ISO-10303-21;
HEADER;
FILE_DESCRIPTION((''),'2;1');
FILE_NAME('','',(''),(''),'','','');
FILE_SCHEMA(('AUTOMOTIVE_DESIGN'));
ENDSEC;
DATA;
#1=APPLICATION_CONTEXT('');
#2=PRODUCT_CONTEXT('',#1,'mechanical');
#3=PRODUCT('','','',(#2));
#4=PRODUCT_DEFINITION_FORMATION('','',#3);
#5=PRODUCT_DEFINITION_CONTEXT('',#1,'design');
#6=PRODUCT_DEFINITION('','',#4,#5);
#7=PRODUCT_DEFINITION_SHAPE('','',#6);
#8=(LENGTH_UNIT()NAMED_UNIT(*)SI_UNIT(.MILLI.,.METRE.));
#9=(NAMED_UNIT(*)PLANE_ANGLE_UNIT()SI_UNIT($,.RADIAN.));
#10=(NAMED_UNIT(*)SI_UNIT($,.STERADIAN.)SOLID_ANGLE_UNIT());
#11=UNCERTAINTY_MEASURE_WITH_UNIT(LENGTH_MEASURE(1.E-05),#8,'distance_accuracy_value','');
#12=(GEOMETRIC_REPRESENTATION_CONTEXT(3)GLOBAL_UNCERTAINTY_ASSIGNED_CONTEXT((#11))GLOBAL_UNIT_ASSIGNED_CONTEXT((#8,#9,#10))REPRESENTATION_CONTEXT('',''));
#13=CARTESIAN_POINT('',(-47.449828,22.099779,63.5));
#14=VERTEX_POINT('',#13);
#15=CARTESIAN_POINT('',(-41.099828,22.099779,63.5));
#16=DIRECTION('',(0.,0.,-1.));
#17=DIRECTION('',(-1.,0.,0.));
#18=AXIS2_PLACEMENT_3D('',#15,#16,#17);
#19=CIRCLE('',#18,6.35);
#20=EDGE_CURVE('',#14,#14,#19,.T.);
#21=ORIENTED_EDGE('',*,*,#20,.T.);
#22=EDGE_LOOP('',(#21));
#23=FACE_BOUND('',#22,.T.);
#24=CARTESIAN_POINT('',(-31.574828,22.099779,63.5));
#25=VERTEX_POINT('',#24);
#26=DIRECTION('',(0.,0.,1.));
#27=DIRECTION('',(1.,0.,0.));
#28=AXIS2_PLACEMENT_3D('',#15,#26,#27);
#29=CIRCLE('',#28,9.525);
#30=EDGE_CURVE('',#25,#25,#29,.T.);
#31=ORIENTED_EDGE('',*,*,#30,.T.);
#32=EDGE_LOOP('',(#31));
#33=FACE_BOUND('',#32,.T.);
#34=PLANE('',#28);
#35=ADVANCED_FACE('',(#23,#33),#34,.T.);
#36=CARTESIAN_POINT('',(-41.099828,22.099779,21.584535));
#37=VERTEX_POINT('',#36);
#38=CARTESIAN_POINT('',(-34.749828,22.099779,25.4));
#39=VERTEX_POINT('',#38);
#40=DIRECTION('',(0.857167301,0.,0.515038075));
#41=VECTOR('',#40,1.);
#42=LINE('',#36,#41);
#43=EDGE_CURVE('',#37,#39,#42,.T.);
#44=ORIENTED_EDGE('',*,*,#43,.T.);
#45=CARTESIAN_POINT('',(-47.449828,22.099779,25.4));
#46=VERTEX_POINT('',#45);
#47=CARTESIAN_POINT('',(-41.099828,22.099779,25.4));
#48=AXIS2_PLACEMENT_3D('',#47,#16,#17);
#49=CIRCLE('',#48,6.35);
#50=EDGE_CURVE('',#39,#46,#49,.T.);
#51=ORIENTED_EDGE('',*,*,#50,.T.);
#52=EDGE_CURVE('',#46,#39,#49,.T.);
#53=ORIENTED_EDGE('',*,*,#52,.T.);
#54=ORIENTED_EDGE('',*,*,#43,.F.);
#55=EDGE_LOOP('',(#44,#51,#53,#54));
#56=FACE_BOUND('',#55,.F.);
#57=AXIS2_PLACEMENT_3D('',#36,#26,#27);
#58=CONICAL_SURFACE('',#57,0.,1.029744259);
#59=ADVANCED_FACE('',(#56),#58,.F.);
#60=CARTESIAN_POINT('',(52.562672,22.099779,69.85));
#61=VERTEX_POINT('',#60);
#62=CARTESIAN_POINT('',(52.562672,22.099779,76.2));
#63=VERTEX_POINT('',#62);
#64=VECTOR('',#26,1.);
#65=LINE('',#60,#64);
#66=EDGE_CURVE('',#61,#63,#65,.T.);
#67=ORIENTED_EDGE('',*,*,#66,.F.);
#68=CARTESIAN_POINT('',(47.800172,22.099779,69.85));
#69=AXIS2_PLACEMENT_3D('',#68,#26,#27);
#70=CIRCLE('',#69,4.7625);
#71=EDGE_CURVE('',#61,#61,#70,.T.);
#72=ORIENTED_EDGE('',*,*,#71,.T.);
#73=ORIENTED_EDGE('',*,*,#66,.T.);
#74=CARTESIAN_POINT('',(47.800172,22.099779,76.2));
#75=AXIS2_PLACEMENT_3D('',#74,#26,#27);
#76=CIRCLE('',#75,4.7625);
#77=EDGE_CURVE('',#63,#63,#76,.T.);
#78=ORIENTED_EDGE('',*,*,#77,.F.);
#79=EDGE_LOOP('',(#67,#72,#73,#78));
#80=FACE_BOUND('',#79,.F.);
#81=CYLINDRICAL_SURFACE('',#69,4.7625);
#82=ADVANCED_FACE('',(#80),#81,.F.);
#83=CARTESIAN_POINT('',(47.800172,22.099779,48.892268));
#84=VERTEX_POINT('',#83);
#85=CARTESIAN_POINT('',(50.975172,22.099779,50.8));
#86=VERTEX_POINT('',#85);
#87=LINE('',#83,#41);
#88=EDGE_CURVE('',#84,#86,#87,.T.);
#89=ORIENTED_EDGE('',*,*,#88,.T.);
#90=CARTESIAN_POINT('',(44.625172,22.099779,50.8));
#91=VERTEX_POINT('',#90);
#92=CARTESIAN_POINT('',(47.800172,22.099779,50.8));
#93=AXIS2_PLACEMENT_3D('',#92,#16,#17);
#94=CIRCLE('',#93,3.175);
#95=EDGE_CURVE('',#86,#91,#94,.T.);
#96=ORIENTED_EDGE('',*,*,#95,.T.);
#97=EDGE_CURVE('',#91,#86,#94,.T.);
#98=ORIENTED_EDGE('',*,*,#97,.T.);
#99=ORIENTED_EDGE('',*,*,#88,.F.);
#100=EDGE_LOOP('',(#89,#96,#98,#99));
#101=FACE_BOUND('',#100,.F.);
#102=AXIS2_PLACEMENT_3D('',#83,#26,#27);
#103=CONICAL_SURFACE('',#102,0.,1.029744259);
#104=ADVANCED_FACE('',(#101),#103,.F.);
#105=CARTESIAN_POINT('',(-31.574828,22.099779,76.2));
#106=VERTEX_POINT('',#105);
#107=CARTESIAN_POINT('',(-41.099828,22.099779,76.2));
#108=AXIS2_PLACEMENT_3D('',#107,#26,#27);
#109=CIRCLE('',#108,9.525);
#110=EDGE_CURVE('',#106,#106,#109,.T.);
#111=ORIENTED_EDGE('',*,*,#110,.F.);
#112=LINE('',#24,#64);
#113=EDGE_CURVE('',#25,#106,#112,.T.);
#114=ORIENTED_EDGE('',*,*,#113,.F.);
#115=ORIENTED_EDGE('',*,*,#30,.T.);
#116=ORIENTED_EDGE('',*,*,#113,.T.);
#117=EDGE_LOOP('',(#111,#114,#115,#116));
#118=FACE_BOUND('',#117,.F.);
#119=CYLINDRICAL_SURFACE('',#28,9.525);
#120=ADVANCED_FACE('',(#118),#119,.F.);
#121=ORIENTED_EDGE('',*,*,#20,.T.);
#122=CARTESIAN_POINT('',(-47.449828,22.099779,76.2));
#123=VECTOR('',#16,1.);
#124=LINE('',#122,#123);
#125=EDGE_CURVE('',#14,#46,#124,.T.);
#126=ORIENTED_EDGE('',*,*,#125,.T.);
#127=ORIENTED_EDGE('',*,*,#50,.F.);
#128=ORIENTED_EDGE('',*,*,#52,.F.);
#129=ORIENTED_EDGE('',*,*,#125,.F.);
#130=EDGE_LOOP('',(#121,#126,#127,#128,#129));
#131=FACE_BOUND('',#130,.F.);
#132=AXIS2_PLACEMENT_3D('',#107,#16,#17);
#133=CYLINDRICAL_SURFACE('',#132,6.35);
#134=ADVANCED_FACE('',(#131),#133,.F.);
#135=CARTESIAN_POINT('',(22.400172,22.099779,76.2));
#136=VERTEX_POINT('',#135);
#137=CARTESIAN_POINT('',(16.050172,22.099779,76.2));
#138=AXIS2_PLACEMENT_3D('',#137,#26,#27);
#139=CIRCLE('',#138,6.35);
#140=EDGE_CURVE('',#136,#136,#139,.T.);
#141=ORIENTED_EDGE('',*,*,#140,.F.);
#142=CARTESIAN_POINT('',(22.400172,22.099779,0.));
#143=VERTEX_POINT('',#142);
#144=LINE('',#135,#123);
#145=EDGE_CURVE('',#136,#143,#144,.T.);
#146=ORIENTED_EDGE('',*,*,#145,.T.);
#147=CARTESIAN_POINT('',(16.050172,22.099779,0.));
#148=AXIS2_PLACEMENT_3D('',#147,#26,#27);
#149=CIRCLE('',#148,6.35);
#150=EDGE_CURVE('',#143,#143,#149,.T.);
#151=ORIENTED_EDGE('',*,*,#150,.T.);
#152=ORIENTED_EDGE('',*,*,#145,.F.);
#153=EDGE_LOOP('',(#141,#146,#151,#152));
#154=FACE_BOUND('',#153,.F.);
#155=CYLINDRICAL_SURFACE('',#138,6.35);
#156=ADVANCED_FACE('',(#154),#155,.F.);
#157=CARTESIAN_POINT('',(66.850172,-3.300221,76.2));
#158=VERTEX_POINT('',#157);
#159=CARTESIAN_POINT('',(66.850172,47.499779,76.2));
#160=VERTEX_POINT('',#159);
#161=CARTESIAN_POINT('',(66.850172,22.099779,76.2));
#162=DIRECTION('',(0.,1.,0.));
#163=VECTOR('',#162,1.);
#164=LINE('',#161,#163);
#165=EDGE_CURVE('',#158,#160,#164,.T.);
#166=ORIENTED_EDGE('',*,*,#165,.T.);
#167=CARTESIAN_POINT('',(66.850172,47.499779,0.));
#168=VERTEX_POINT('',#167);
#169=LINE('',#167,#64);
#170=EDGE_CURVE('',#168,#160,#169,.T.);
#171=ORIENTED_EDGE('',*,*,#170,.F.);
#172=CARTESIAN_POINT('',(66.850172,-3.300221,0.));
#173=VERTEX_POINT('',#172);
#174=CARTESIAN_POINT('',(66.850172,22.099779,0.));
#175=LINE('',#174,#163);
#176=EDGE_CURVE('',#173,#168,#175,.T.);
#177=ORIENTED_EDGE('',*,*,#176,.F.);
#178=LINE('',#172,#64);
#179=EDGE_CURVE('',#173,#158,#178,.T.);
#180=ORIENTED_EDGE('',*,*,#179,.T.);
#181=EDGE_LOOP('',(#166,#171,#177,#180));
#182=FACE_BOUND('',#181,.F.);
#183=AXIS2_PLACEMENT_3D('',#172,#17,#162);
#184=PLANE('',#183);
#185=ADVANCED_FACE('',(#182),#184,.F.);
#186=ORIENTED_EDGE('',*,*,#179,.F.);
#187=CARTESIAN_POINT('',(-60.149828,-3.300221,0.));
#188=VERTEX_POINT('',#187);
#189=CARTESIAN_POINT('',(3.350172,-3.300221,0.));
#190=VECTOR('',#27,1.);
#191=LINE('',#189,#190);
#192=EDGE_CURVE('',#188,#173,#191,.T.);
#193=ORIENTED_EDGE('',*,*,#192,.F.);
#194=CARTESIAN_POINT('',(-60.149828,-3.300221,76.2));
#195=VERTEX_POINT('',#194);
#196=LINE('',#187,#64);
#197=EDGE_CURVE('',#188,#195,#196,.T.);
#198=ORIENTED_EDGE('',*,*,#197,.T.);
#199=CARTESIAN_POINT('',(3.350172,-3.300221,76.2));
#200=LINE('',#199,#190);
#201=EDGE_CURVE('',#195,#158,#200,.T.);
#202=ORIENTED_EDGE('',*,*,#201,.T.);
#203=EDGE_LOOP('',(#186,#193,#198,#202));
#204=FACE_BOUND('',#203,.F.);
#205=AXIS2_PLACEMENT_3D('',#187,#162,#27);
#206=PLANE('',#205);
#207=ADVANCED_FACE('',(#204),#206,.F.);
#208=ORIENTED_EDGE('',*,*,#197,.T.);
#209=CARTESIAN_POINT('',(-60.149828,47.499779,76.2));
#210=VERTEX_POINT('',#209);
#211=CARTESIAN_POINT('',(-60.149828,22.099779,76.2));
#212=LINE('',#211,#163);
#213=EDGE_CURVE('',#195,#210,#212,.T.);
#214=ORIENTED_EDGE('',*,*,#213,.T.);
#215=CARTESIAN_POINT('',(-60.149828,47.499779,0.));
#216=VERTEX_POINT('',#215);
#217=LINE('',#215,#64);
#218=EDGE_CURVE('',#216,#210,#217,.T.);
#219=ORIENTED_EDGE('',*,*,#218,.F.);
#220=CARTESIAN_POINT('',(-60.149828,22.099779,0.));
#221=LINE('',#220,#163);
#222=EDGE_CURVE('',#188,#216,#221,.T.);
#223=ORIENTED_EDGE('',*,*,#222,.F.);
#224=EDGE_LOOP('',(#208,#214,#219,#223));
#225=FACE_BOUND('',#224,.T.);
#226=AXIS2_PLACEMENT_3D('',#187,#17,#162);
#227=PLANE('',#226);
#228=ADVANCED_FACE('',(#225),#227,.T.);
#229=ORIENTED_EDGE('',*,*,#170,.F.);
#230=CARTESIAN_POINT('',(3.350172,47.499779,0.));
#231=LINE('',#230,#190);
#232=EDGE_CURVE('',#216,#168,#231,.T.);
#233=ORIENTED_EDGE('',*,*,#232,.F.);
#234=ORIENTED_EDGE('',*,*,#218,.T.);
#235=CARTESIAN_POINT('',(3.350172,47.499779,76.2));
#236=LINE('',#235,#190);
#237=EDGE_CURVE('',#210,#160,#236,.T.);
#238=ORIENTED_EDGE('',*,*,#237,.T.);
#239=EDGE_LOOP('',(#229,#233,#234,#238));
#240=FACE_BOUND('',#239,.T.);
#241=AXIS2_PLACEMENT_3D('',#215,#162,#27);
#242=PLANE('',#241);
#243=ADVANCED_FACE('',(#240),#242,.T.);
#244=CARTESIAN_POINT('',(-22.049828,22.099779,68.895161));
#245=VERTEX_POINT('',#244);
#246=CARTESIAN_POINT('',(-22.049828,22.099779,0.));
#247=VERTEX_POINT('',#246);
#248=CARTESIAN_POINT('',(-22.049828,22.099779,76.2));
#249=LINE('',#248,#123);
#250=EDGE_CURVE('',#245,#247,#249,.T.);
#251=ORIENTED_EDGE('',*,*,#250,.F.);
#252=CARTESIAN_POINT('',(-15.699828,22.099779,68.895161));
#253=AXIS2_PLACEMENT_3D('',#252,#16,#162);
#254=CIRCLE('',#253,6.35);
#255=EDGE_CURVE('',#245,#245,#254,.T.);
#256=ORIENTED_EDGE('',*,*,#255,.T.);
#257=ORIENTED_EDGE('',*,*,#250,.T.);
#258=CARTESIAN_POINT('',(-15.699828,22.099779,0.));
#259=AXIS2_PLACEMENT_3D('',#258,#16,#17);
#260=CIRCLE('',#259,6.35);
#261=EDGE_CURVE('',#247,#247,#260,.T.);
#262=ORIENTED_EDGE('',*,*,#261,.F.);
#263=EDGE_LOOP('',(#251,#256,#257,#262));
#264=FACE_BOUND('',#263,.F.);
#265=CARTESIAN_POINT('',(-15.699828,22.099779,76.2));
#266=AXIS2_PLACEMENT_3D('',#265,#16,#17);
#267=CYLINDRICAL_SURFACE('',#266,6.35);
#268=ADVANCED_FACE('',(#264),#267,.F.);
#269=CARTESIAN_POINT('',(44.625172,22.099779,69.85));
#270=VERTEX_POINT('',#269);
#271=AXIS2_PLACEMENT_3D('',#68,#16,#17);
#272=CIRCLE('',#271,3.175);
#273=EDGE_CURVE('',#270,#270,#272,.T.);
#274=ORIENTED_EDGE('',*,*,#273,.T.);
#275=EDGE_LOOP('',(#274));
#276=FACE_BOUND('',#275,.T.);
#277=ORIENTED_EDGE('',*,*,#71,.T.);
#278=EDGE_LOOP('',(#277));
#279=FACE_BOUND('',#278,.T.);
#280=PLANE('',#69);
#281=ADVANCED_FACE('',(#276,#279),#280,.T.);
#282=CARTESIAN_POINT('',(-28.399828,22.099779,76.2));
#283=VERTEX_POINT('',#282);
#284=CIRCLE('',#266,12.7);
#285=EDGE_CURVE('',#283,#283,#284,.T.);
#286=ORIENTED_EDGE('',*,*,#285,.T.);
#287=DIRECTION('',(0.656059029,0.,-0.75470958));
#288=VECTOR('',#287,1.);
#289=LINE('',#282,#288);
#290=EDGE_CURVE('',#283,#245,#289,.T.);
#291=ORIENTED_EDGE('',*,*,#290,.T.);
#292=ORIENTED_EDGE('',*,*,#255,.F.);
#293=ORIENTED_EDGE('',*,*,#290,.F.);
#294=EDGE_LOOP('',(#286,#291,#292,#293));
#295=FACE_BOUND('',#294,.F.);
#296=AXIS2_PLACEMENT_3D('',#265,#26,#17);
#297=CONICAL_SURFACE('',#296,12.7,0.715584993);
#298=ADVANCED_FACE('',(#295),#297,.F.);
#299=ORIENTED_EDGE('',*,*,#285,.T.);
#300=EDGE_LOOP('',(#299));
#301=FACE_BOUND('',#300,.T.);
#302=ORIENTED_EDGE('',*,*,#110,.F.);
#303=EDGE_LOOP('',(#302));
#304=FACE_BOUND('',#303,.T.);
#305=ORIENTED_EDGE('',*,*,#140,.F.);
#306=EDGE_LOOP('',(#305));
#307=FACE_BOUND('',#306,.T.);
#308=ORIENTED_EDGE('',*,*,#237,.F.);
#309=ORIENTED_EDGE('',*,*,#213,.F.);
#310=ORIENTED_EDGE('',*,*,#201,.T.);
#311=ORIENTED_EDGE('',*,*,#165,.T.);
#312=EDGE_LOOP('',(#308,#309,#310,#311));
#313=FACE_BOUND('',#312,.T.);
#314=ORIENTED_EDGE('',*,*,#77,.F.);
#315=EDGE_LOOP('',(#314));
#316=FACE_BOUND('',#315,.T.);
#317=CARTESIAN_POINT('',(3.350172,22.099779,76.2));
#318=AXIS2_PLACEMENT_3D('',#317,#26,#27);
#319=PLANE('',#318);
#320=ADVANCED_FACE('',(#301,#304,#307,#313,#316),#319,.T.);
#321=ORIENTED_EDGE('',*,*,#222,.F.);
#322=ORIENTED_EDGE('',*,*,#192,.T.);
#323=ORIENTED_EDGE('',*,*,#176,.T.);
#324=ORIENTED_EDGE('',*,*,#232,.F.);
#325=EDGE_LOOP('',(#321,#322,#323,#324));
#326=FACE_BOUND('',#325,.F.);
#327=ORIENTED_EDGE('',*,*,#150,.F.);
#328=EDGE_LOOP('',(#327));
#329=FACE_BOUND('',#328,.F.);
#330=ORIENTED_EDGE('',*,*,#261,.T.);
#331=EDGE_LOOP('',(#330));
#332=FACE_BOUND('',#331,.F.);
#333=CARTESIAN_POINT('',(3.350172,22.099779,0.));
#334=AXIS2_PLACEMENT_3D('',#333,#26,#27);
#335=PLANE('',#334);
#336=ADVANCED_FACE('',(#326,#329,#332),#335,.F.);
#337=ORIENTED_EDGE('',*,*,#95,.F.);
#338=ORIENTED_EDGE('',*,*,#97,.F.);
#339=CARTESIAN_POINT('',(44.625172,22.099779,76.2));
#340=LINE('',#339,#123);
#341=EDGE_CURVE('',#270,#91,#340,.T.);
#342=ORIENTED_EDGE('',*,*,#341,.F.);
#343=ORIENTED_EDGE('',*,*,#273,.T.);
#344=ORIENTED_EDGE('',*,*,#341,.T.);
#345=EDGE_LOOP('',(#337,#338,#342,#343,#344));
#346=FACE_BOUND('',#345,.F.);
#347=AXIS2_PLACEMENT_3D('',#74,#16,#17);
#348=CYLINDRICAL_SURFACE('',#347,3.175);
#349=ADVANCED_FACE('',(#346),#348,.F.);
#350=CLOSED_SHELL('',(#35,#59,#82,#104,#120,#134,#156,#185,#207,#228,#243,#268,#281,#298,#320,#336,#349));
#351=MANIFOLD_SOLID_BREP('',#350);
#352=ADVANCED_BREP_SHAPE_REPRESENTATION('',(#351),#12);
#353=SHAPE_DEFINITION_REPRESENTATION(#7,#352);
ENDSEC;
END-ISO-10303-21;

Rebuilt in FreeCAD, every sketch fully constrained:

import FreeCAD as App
import Part
import Sketcher

V = App.Vector
Q = App.Units.Quantity


def add_polygon(sketch, points):
    """Adds a closed chain of lines whose ends are joined by coincident constraints."""
    first, n = sketch.GeometryCount, len(points)
    for a, b in zip(points, points[1:] + points[:1]):
        sketch.addGeometry(Part.LineSegment(App.Vector(*a, 0), App.Vector(*b, 0)), False)
    for i in range(n):
        sketch.addConstraint(Sketcher.Constraint("Coincident", first + i, 2, first + (i + 1) % n, 1))

doc = App.newDocument("Part")
body = doc.addObject("PartDesign::Body", "Body")

# Sketch on XY plane
sketch1 = doc.addObject("Sketcher::SketchObject", "Sketch")
body.addObject(sketch1)
sketch1.AttachmentSupport = (doc.XY_Plane, [""])
sketch1.MapMode = "FlatFace"
add_polygon(sketch1, [(-60, 47), (-60, -3), (67, -3), (67, 47)])  # lines 0-3
sketch1.addConstraint([
    Sketcher.Constraint("Vertical", 0),
    Sketcher.Constraint("Horizontal", 1),
    Sketcher.Constraint("Vertical", 2),
    Sketcher.Constraint("Horizontal", 3),
    Sketcher.Constraint("DistanceX", 1, 1, 1, 2, Q("5 in")),
    Sketcher.Constraint("DistanceY", 0, 2, 0, 1, Q("2 in")),
    Sketcher.Constraint("DistanceY", 0, 2, -1, 1, 3.300221),
    Sketcher.Constraint("DistanceX", 0, 2, -1, 1, 60.149828),
])
pad1 = doc.addObject("PartDesign::Pad", "Pad")
body.addObject(pad1)
pad1.Profile = sketch1
pad1.Length = Q("3 in")

# Sketch on XY plane
sketch2 = doc.addObject("Sketcher::SketchObject", "Sketch001")
body.addObject(sketch2)
sketch2.AttachmentSupport = (doc.XY_Plane, [""])
sketch2.MapMode = "FlatFace"
sketch2.AttachmentOffset = App.Placement(V(0, 0, 3 * 25.4), App.Rotation())
sketch2.addGeometry(Part.Circle(V(16, 22, 0), V(0, 0, 1), 6), False)
sketch2.addConstraint([
    Sketcher.Constraint("Diameter", 0, Q("0.5 in")),
    Sketcher.Constraint("DistanceY", -1, 1, 0, 3, 22.099779),
    Sketcher.Constraint("DistanceX", -1, 1, 0, 3, 16.050172),
])
pocket1 = doc.addObject("PartDesign::Pocket", "Pocket")
body.addObject(pocket1)
pocket1.Profile = sketch2
pocket1.Type = "ThroughAll"

# Sketch on XY plane
sketch3 = doc.addObject("Sketcher::SketchObject", "Sketch002")
body.addObject(sketch3)
sketch3.AttachmentSupport = (doc.XY_Plane, [""])
sketch3.MapMode = "FlatFace"
sketch3.AttachmentOffset = App.Placement(V(0, 0, 3 * 25.4), App.Rotation())
sketch3.addGeometry(Part.Circle(V(-16, 22, 0), V(0, 0, 1), 6), False)
sketch3.addConstraint([
    Sketcher.Constraint("Diameter", 0, Q("0.5 in")),
    Sketcher.Constraint("DistanceY", -1, 1, 0, 3, 22.099779),
    Sketcher.Constraint("DistanceX", 0, 3, -1, 1, 15.699828),
])
doc.recompute()
hole = doc.addObject("PartDesign::Hole", "Hole")
body.addObject(hole)
hole.Profile = sketch3
hole.ThreadType = "None"
hole.Diameter = Q("0.5 in")
hole.DepthType = "ThroughAll"
hole.HoleCutType = "Countersink"
hole.HoleCutDiameter = Q("1 in")
hole.HoleCutCountersinkAngle = 82

# Sketch on XY plane
sketch4 = doc.addObject("Sketcher::SketchObject", "Sketch003")
body.addObject(sketch4)
sketch4.AttachmentSupport = (doc.XY_Plane, [""])
sketch4.MapMode = "FlatFace"
sketch4.AttachmentOffset = App.Placement(V(0, 0, 3 * 25.4), App.Rotation())
sketch4.addGeometry(Part.Circle(V(-41, 22, 0), V(0, 0, 1), 6), False)
sketch4.addConstraint([
    Sketcher.Constraint("Diameter", 0, Q("0.5 in")),
    Sketcher.Constraint("DistanceY", -1, 1, 0, 3, 22.099779),
    Sketcher.Constraint("DistanceX", 0, 3, -1, 1, 41.099828),
])
doc.recompute()
hole2 = doc.addObject("PartDesign::Hole", "Hole001")
body.addObject(hole2)
hole2.Profile = sketch4
hole2.ThreadType = "None"
hole2.Diameter = Q("0.5 in")
hole2.DepthType = "Dimension"
hole2.Depth = Q("2 in")
hole2.DrillPoint = "Angled"
hole2.DrillPointAngle = 118
hole2.HoleCutType = "Counterbore"
hole2.HoleCutDiameter = Q("0.75 in")
hole2.HoleCutDepth = Q("0.5 in")

# Sketch on XY plane
sketch5 = doc.addObject("Sketcher::SketchObject", "Sketch004")
body.addObject(sketch5)
sketch5.AttachmentSupport = (doc.XY_Plane, [""])
sketch5.MapMode = "FlatFace"
sketch5.AttachmentOffset = App.Placement(V(0, 0, 3 * 25.4), App.Rotation())
sketch5.addGeometry(Part.Circle(V(47.8, 22.1, 0), V(0, 0, 1), 3.2), False)
sketch5.addConstraint([
    Sketcher.Constraint("Diameter", 0, Q("0.25 in")),
    Sketcher.Constraint("DistanceY", -1, 1, 0, 3, 22.099779),
    Sketcher.Constraint("DistanceX", -1, 1, 0, 3, 47.800172),
])
doc.recompute()
hole3 = doc.addObject("PartDesign::Hole", "Hole002")
body.addObject(hole3)
hole3.Profile = sketch5
hole3.ThreadType = "None"
hole3.Diameter = Q("0.25 in")
hole3.DepthType = "Dimension"
hole3.Depth = Q("1 in")
hole3.DrillPoint = "Angled"
hole3.DrillPointAngle = 118
hole3.HoleCutType = "Counterbore"
hole3.HoleCutDiameter = Q("0.375 in")
hole3.HoleCutDepth = Q("0.25 in")

doc.recompute()
